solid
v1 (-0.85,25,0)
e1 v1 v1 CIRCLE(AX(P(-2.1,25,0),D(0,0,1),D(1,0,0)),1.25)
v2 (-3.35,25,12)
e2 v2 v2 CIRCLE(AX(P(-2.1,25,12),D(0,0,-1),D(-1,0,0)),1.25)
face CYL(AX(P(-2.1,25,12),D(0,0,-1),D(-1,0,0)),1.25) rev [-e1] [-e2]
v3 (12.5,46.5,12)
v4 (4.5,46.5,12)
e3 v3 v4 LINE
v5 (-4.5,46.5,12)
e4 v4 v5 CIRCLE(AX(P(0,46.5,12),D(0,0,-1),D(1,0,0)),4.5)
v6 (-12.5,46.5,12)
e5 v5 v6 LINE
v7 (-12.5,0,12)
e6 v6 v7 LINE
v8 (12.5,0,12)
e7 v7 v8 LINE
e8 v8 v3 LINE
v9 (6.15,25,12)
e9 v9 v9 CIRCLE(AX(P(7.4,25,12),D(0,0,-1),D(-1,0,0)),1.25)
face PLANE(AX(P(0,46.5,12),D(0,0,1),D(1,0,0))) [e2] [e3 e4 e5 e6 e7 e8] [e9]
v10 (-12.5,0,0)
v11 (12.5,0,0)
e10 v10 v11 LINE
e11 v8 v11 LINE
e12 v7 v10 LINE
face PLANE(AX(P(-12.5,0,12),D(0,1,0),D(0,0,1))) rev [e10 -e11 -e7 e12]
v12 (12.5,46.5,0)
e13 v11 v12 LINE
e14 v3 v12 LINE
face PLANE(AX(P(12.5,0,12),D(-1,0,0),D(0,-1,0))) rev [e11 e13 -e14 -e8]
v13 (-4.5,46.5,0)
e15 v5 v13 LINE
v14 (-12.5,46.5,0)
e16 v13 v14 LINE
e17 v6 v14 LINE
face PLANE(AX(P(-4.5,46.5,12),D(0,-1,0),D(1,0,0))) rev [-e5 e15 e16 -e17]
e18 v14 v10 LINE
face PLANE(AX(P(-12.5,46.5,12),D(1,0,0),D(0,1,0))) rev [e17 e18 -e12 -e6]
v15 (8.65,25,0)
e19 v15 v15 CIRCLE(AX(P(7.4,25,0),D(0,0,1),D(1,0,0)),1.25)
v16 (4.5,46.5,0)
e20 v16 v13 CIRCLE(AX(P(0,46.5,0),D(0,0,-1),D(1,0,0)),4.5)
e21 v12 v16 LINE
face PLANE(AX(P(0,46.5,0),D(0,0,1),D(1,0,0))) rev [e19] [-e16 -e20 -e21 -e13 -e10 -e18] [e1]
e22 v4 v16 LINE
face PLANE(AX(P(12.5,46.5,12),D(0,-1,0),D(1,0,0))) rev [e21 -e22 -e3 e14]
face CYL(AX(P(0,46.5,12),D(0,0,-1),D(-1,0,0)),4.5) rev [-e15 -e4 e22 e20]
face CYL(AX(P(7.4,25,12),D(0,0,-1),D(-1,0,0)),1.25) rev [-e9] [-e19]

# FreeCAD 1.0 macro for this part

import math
import FreeCAD as App
import Part
import Sketcher

V = App.Vector

doc = App.newDocument("Part")
body = doc.addObject("PartDesign::Body", "Body")

# Sketch on XY plane
sketch1 = body.newObject("Sketcher::SketchObject", "Sketch")
sketch1.AttachmentSupport = (doc.getObject("XY_Plane"), [""])
sketch1.MapMode = "FlatFace"
sketch1.addGeometry([
    Part.LineSegment(V(-12.5, 0, 0), V(12.5, 0, 0)),  # 0
    Part.LineSegment(V(12.5, 0, 0), V(12.5, 46.5, 0)),  # 1
    Part.LineSegment(V(12.5, 46.5, 0), V(4.5, 46.5, 0)),  # 2
    Part.ArcOfCircle(Part.Circle(V(0, 46.5, 0), V(0, 0, 1), 4.5), math.radians(180), math.radians(360)),  # 3
    Part.LineSegment(V(-4.5, 46.5, 0), V(-12.5, 46.5, 0)),  # 4
    Part.LineSegment(V(-12.5, 46.5, 0), V(-12.5, 0, 0)),  # 5
], False)
sketch1.addConstraint([
    Sketcher.Constraint("Coincident", 0, 2, 1, 1),
    Sketcher.Constraint("Coincident", 1, 2, 2, 1),
    Sketcher.Constraint("Coincident", 2, 2, 3, 2),
    Sketcher.Constraint("Coincident", 3, 1, 4, 1),
    Sketcher.Constraint("Coincident", 4, 2, 5, 1),
    Sketcher.Constraint("Coincident", 5, 2, 0, 1),
    Sketcher.Constraint("Horizontal", 0),
    Sketcher.Constraint("Vertical", 1),
    Sketcher.Constraint("Horizontal", 2),
    Sketcher.Constraint("Horizontal", 4),
    Sketcher.Constraint("Vertical", 5),
    Sketcher.Constraint("Symmetric", 0, 2, 5, 2, -1, 1),
    Sketcher.Constraint("Symmetric", 2, 2, 3, 1, -2),
    Sketcher.Constraint("Horizontal", 3, 3, 1, 2),
    Sketcher.Constraint("Radius", 3, 4.5),
    Sketcher.Constraint("DistanceX", 0, 1, 0, 2, 25.0),
    Sketcher.Constraint("DistanceY", 1, 1, 1, 2, 46.5),
])
pad1 = body.newObject("PartDesign::Pad", "Pad")
pad1.Profile = sketch1
pad1.Length = 12

# Sketch on XY plane
sketch2 = body.newObject("Sketcher::SketchObject", "Sketch001")
sketch2.AttachmentSupport = (doc.getObject("XY_Plane"), [""])
sketch2.MapMode = "FlatFace"
sketch2.addGeometry([
    Part.Circle(V(7.4, 25, 0), V(0, 0, 1), 1.2),
    Part.Circle(V(-2.1, 25, 0), V(0, 0, 1), 1.2),
], False)
sketch2.addConstraint([
    Sketcher.Constraint("Equal", 0, 1),
    Sketcher.Constraint("Horizontal", 0, 3, 1, 3),
    Sketcher.Constraint("Diameter", 0, 2.5),
    Sketcher.Constraint("DistanceY", -1, 1, 0, 3, 25.0),
    Sketcher.Constraint("DistanceX", -1, 1, 0, 3, 7.4),
    Sketcher.Constraint("DistanceX", 1, 3, -1, 1, 2.1),
])
pocket1 = body.newObject("PartDesign::Pocket", "Pocket")
pocket1.Profile = sketch2
pocket1.Type = "ThroughAll"
pocket1.Midplane = True

doc.recompute()
